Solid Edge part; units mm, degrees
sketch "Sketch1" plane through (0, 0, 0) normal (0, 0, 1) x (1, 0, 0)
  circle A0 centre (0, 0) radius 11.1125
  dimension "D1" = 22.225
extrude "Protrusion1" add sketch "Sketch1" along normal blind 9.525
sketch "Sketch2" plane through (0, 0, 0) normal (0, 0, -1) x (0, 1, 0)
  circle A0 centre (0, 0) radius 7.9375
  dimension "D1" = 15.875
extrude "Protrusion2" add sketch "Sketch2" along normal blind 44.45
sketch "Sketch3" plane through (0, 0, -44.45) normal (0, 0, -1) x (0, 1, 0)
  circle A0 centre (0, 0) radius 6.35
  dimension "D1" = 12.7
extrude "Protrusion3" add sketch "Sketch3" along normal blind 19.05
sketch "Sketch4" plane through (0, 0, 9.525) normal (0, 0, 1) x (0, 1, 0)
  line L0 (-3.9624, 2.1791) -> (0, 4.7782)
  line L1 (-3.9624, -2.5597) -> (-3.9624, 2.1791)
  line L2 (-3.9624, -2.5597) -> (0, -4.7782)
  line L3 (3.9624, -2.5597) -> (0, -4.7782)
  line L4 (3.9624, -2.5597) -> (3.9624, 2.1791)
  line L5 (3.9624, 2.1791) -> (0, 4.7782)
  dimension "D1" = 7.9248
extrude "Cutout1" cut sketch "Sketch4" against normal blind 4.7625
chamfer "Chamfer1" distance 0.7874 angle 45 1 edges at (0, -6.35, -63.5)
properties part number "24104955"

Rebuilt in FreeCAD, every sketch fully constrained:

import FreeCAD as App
import Part
import Sketcher
Q = App.Units.Quantity


def edges_at(feature, points):
    """Names of the edges that pass closest to the given points."""
    edges = feature.Shape.Edges
    near = lambda p: min(range(len(edges)), key=lambda i: edges[i].distToShape(Part.Vertex(*p))[0])
    return sorted({f"Edge{near(p) + 1}" for p in points})


def add_polygon(sketch, points):
    """Adds a closed chain of lines whose ends are joined by coincident constraints."""
    first, n = sketch.GeometryCount, len(points)
    for a, b in zip(points, points[1:] + points[:1]):
        sketch.addGeometry(Part.LineSegment(App.Vector(*a, 0), App.Vector(*b, 0)), False)
    for i in range(n):
        sketch.addConstraint(Sketcher.Constraint("Coincident", first + i, 2, first + (i + 1) % n, 1))

doc = App.newDocument("Part")
body = doc.addObject("PartDesign::Body", "Body")

# Sketch on XY plane
sketch1 = body.newObject("Sketcher::SketchObject", "Sketch")
sketch1.AttachmentSupport = (doc.getObject("XY_Plane"), [""])
sketch1.MapMode = "FlatFace"
sketch1.addGeometry(Part.Circle(App.Vector(0, 0, 0), App.Vector(0, 0, 1), 11), False)
sketch1.addConstraint(Sketcher.Constraint("Coincident", 0, 3, -1, 1))
sketch1.addConstraint(Sketcher.Constraint("Diameter", 0, Q("0.875 in")))
pad1 = body.newObject("PartDesign::Pad", "Pad")
pad1.Profile = sketch1
pad1.Length = Q("0.375 in")

# Sketch on XY plane
sketch2 = body.newObject("Sketcher::SketchObject", "Sketch001")
sketch2.AttachmentSupport = (doc.getObject("XY_Plane"), [""])
sketch2.MapMode = "FlatFace"
sketch2.addGeometry(Part.Circle(App.Vector(0, 0, 0), App.Vector(0, 0, 1), 8), False)
sketch2.addConstraint(Sketcher.Constraint("Coincident", 0, 3, -1, 1))
sketch2.addConstraint(Sketcher.Constraint("Diameter", 0, Q("0.625 in")))
pad2 = body.newObject("PartDesign::Pad", "Pad001")
pad2.Profile = sketch2
pad2.Length = Q("1.75 in")
pad2.Reversed = True

# Sketch on XY plane
sketch3 = body.newObject("Sketcher::SketchObject", "Sketch002")
sketch3.AttachmentSupport = (doc.getObject("XY_Plane"), [""])
sketch3.MapMode = "FlatFace"
sketch3.AttachmentOffset = App.Placement(App.Vector(0, 0, -1.75 * 25.4), App.Rotation())
sketch3.addGeometry(Part.Circle(App.Vector(0, 0, 0), App.Vector(0, 0, 1), 6), False)
sketch3.addConstraint(Sketcher.Constraint("Coincident", 0, 3, -1, 1))
sketch3.addConstraint(Sketcher.Constraint("Diameter", 0, Q("0.5 in")))
pad3 = body.newObject("PartDesign::Pad", "Pad002")
pad3.Profile = sketch3
pad3.Length = Q("0.75 in")
pad3.Reversed = True

# Sketch on XY plane
sketch4 = body.newObject("Sketcher::SketchObject", "Sketch003")
sketch4.AttachmentSupport = (doc.getObject("XY_Plane"), [""])
sketch4.MapMode = "FlatFace"
sketch4.AttachmentOffset = App.Placement(App.Vector(0, 0, 0.375 * 25.4), App.Rotation())
add_polygon(sketch4, [(-4.8, 0), (-2.2, -4), (2.6, -4), (4.8, 0), (2.6, 4), (-2.2, 4)])  # lines 0-5
sketch4.addConstraint(Sketcher.Constraint("Horizontal", 1))
sketch4.addConstraint(Sketcher.Constraint("Horizontal", 4))
sketch4.addConstraint(Sketcher.Constraint("Symmetric", 2, 2, 5, 2, -1, 1))
sketch4.addConstraint(Sketcher.Constraint("Symmetric", 1, 2, 3, 2, -1))
sketch4.addConstraint(Sketcher.Constraint("PointOnObject", 2, 2, -1))
sketch4.addConstraint(Sketcher.Constraint("Vertical", 0, 2, 4, 2))
sketch4.addConstraint(Sketcher.Constraint("DistanceY", 0, 2, -1, 1, Q("0.156 in")))
sketch4.addConstraint(Sketcher.Constraint("DistanceX", 1, 1, 1, 2, 4.7388))
sketch4.addConstraint(Sketcher.Constraint("DistanceX", 0, 2, -1, 1, Q("0.0858 in")))
sketch4.addConstraint(Sketcher.Constraint("DistanceX", 0, 2, 2, 2, Q("0.2739 in")))
pocket1 = body.newObject("PartDesign::Pocket", "Pocket")
pocket1.Profile = sketch4
pocket1.Length = Q("0.1875 in")
doc.recompute()

chamfer = body.newObject("PartDesign::Chamfer", "Chamfer")
chamfer.Base = (pocket1, edges_at(pocket1, [(0, -6.35, -63.5)]))
chamfer.Size = Q("0.031 in")

doc.recompute()
